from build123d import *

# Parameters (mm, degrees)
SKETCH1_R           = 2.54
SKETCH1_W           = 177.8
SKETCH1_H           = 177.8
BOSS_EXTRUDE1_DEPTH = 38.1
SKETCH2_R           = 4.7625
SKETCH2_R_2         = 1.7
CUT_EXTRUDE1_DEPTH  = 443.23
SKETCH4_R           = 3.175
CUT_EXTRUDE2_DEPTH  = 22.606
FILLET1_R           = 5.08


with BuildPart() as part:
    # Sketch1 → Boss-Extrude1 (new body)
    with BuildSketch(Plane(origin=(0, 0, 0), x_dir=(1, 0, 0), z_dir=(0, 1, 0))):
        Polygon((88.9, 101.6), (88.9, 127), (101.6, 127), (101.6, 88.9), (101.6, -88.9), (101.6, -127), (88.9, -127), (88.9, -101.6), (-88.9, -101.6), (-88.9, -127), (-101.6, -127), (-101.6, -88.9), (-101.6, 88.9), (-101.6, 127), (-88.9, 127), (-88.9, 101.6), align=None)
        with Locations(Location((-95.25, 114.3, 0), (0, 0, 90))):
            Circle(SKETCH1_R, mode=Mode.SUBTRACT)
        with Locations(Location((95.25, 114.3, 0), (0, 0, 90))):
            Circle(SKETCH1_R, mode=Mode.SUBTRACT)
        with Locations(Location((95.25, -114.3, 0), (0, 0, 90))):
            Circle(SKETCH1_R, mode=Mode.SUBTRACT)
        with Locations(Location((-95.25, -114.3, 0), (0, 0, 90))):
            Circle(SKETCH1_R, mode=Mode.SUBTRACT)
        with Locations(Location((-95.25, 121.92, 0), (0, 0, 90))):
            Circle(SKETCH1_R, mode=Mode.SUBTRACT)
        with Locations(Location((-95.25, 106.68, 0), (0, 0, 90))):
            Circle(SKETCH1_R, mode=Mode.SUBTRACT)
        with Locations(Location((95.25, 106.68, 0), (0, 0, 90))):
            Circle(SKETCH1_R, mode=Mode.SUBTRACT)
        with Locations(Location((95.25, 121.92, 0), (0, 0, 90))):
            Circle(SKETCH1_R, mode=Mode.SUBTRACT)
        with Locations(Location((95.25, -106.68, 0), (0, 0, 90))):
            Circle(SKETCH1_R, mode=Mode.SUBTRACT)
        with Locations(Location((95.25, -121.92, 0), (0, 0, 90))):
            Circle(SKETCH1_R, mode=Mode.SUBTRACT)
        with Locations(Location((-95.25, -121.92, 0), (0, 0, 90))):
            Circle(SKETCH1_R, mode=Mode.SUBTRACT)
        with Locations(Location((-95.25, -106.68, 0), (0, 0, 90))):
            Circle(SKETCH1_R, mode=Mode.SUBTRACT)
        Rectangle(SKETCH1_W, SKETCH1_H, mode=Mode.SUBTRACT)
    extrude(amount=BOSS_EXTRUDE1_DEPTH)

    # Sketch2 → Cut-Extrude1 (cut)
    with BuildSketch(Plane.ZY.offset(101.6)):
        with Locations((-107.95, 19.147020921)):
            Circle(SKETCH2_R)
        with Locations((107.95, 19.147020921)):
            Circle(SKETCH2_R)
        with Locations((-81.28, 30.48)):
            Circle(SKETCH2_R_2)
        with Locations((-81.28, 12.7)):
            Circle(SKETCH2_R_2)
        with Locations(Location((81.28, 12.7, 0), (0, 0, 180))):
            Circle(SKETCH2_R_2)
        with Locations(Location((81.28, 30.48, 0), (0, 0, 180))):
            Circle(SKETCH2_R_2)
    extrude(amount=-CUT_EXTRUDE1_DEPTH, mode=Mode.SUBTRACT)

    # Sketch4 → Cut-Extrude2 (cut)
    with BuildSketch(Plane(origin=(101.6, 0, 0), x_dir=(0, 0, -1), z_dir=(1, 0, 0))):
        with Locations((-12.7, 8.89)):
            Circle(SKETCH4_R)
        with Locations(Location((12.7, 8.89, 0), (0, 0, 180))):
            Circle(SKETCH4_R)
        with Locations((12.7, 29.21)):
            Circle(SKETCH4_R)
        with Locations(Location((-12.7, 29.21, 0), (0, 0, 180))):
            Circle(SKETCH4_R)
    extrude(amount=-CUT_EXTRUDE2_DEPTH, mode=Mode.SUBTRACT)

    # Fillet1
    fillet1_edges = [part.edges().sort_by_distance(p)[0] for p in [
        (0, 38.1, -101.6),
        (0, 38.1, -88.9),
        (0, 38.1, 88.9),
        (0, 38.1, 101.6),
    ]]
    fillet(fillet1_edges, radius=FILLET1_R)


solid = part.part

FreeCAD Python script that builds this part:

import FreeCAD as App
import Part
import Sketcher

V = App.Vector
Q = App.Units.Quantity


def edges_at(feature, points):
    """Names of the edges that pass closest to the given points."""
    edges = feature.Shape.Edges
    near = lambda p: min(range(len(edges)), key=lambda i: edges[i].distToShape(Part.Vertex(*p))[0])
    return sorted({f"Edge{near(p) + 1}" for p in points})


def add_polygon(sketch, points):
    """Adds a closed chain of lines whose ends are joined by coincident constraints."""
    first, n = sketch.GeometryCount, len(points)
    for a, b in zip(points, points[1:] + points[:1]):
        sketch.addGeometry(Part.LineSegment(App.Vector(*a, 0), App.Vector(*b, 0)), False)
    for i in range(n):
        sketch.addConstraint(Sketcher.Constraint("Coincident", first + i, 2, first + (i + 1) % n, 1))

doc = App.newDocument("Part")
body = doc.addObject("PartDesign::Body", "Body")

sketch1 = body.newObject("Sketcher::SketchObject", "Sketch")
sketch1.AttachmentSupport = (doc.getObject("XZ_Plane"), [""])
sketch1.MapMode = "FlatFace"
add_polygon(sketch1, [(88.9, -127), (88.9, -101.6), (-88.9, -101.6), (-88.9, -127), (-101.6, -127), (-101.6, 127), (-88.9, 127), (-88.9, 101.6), (88.9, 101.6), (88.9, 127), (101.6, 127), (101.6, -127)])
sketch1.addGeometry(Part.Circle(V(95.2, 121.9, 0), V(0, 0, 1), 2.5), False)
sketch1.addGeometry(Part.Circle(V(95.2, 114.3, 0), V(0, 0, 1), 2.5), False)
sketch1.addGeometry(Part.Circle(V(95.2, 106.7, 0), V(0, 0, 1), 2.5), False)
sketch1.addGeometry(Part.Circle(V(-95.2, 121.9, 0), V(0, 0, 1), 2.5), False)
sketch1.addGeometry(Part.Circle(V(-95.2, 114.3, 0), V(0, 0, 1), 2.5), False)
sketch1.addGeometry(Part.Circle(V(-95.2, 106.7, 0), V(0, 0, 1), 2.5), False)
sketch1.addGeometry(Part.Circle(V(95.2, -106.7, 0), V(0, 0, 1), 2.5), False)
sketch1.addGeometry(Part.Circle(V(95.2, -114.3, 0), V(0, 0, 1), 2.5), False)
sketch1.addGeometry(Part.Circle(V(95.2, -121.9, 0), V(0, 0, 1), 2.5), False)
add_polygon(sketch1, [(-88.9, 88.9), (-88.9, -88.9), (88.9, -88.9), (88.9, 88.9)])
sketch1.addGeometry(Part.Circle(V(-95.2, -106.7, 0), V(0, 0, 1), 2.5), False)
sketch1.addGeometry(Part.Circle(V(-95.2, -114.3, 0), V(0, 0, 1), 2.5), False)
sketch1.addGeometry(Part.Circle(V(-95.2, -121.9, 0), V(0, 0, 1), 2.5), False)
sketch1.addConstraint(Sketcher.Constraint("Vertical", 0))
sketch1.addConstraint(Sketcher.Constraint("Horizontal", 1))
sketch1.addConstraint(Sketcher.Constraint("Vertical", 2))
sketch1.addConstraint(Sketcher.Constraint("Horizontal", 3))
sketch1.addConstraint(Sketcher.Constraint("Vertical", 4))
sketch1.addConstraint(Sketcher.Constraint("Horizontal", 5))
sketch1.addConstraint(Sketcher.Constraint("Vertical", 6))
sketch1.addConstraint(Sketcher.Constraint("Horizontal", 7))
sketch1.addConstraint(Sketcher.Constraint("Vertical", 8))
sketch1.addConstraint(Sketcher.Constraint("Horizontal", 9))
sketch1.addConstraint(Sketcher.Constraint("Vertical", 10))
sketch1.addConstraint(Sketcher.Constraint("Horizontal", 11))
sketch1.addConstraint(Sketcher.Constraint("Vertical", 21))
sketch1.addConstraint(Sketcher.Constraint("Horizontal", 22))
sketch1.addConstraint(Sketcher.Constraint("Vertical", 23))
sketch1.addConstraint(Sketcher.Constraint("Horizontal", 24))
sketch1.addConstraint(Sketcher.Constraint("Equal", 12, 13))
sketch1.addConstraint(Sketcher.Constraint("Equal", 13, 14))
sketch1.addConstraint(Sketcher.Constraint("Equal", 14, 15))
sketch1.addConstraint(Sketcher.Constraint("Equal", 15, 16))
sketch1.addConstraint(Sketcher.Constraint("Equal", 16, 17))
sketch1.addConstraint(Sketcher.Constraint("Equal", 17, 18))
sketch1.addConstraint(Sketcher.Constraint("Equal", 18, 19))
sketch1.addConstraint(Sketcher.Constraint("Equal", 19, 20))
sketch1.addConstraint(Sketcher.Constraint("Equal", 20, 25))
sketch1.addConstraint(Sketcher.Constraint("Equal", 25, 26))
sketch1.addConstraint(Sketcher.Constraint("Equal", 26, 27))
sketch1.addConstraint(Sketcher.Constraint("Symmetric", 17, 3, 18, 3, -1, 1))
sketch1.addConstraint(Sketcher.Constraint("Symmetric", 16, 3, 19, 3, -1, 1))
sketch1.addConstraint(Sketcher.Constraint("Symmetric", 15, 3, 20, 3, -1, 1))
sketch1.addConstraint(Sketcher.Constraint("Symmetric", 14, 3, 25, 3, -1, 1))
sketch1.addConstraint(Sketcher.Constraint("Symmetric", 13, 3, 26, 3, -1, 1))
sketch1.addConstraint(Sketcher.Constraint("Symmetric", 12, 3, 27, 3, -1, 1))
sketch1.addConstraint(Sketcher.Constraint("Symmetric", 0, 2, 6, 2, -1, 1))
sketch1.addConstraint(Sketcher.Constraint("Symmetric", 2, 2, 8, 2, -1, 1))
sketch1.addConstraint(Sketcher.Constraint("Symmetric", 4, 2, 10, 2, -1, 1))
sketch1.addConstraint(Sketcher.Constraint("Symmetric", 21, 2, 23, 2, -1, 1))
sketch1.addConstraint(Sketcher.Constraint("Symmetric", 12, 3, 15, 3, -2))
sketch1.addConstraint(Sketcher.Constraint("Symmetric", 13, 3, 16, 3, -2))
sketch1.addConstraint(Sketcher.Constraint("Symmetric", 14, 3, 17, 3, -2))
sketch1.addConstraint(Sketcher.Constraint("Symmetric", 5, 2, 8, 2, -2))
sketch1.addConstraint(Sketcher.Constraint("Vertical", 12, 3, 13, 3))
sketch1.addConstraint(Sketcher.Constraint("Vertical", 13, 3, 14, 3))
sketch1.addConstraint(Sketcher.Constraint("Vertical", 6, 2, 21, 2))
sketch1.addConstraint(Sketcher.Constraint("Equal", 24, 21))
sketch1.addConstraint(Sketcher.Constraint("Diameter", 12, Q("0.2 in")))
sketch1.addConstraint(Sketcher.Constraint("DistanceX", 1, 2, 1, 1, Q("7 in")))
sketch1.addConstraint(Sketcher.Constraint("DistanceY", 0, 1, 0, 2, Q("1 in")))
sketch1.addConstraint(Sketcher.Constraint("DistanceY", 4, 1, 4, 2, Q("10 in")))
sketch1.addConstraint(Sketcher.Constraint("DistanceX", 3, 2, 3, 1, Q("0.5 in")))
sketch1.addConstraint(Sketcher.Constraint("DistanceY", 18, 3, 12, 3, Q("9 in")))
sketch1.addConstraint(Sketcher.Constraint("DistanceY", 19, 3, 13, 3, Q("9 in")))
sketch1.addConstraint(Sketcher.Constraint("DistanceY", -1, 1, 12, 3, Q("4.8 in")))
sketch1.addConstraint(Sketcher.Constraint("DistanceX", 15, 3, 12, 3, Q("7.5 in")))
pad1 = body.newObject("PartDesign::Pad", "Pad")
pad1.Profile = sketch1
pad1.Length = Q("1.5 in")
pad1.Reversed = True

sketch2 = body.newObject("Sketcher::SketchObject", "Sketch001")
sketch2.AttachmentSupport = (doc.getObject("YZ_Plane"), [""])
sketch2.MapMode = "FlatFace"
sketch2.AttachmentOffset = App.Placement(V(0, 0, -4 * 25.4), App.Rotation())
sketch2.addGeometry(Part.Circle(V(19.1, -108, 0), V(0, 0, 1), 4.8), False)
sketch2.addGeometry(Part.Circle(V(19.1, 108, 0), V(0, 0, 1), 4.8), False)
sketch2.addGeometry(Part.Circle(V(30.5, -81.3, 0), V(0, 0, 1), 1.7), False)
sketch2.addGeometry(Part.Circle(V(12.7, -81.3, 0), V(0, 0, 1), 1.7), False)
sketch2.addGeometry(Part.Circle(V(12.7, 81.3, 0), V(0, 0, 1), 1.7), False)
sketch2.addGeometry(Part.Circle(V(30.5, 81.3, 0), V(0, 0, 1), 1.7), False)
sketch2.addConstraint(Sketcher.Constraint("Equal", 0, 1))
sketch2.addConstraint(Sketcher.Constraint("Equal", 2, 3))
sketch2.addConstraint(Sketcher.Constraint("Equal", 3, 4))
sketch2.addConstraint(Sketcher.Constraint("Equal", 4, 5))
sketch2.addConstraint(Sketcher.Constraint("Symmetric", 0, 3, 1, 3, -1))
sketch2.addConstraint(Sketcher.Constraint("Symmetric", 3, 3, 4, 3, -1))
sketch2.addConstraint(Sketcher.Constraint("Symmetric", 2, 3, 5, 3, -1))
sketch2.addConstraint(Sketcher.Constraint("Horizontal", 2, 3, 3, 3))
sketch2.addConstraint(Sketcher.Constraint("Diameter", 0, Q("0.375 in")))
sketch2.addConstraint(Sketcher.Constraint("DistanceX", -1, 1, 2, 3, Q("1.2 in")))
sketch2.addConstraint(Sketcher.Constraint("DistanceY", 2, 3, -1, 1, Q("3.2 in")))
sketch2.addConstraint(Sketcher.Constraint("DistanceX", -1, 1, 3, 3, Q("0.5 in")))
sketch2.addConstraint(Sketcher.Constraint("DistanceY", 0, 3, 1, 3, Q("8.5 in")))
sketch2.addConstraint(Sketcher.Constraint("Diameter", 2, Q("3.4 mm")))
sketch2.addConstraint(Sketcher.Constraint("DistanceX", -1, 1, 0, 3, Q("19.147021 mm")))
pocket1 = body.newObject("PartDesign::Pocket", "Pocket")
pocket1.Profile = sketch2
pocket1.Length = Q("17.45 in")
pocket1.Reversed = True

sketch3 = body.newObject("Sketcher::SketchObject", "Sketch002")
sketch3.AttachmentSupport = (doc.getObject("YZ_Plane"), [""])
sketch3.MapMode = "FlatFace"
sketch3.AttachmentOffset = App.Placement(V(0, 0, 4 * 25.4), App.Rotation())
sketch3.addGeometry(Part.Circle(V(8.9, 12.7, 0), V(0, 0, 1), 3.2), False)
sketch3.addGeometry(Part.Circle(V(8.9, -12.7, 0), V(0, 0, 1), 3.2), False)
sketch3.addGeometry(Part.Circle(V(29.2, -12.7, 0), V(0, 0, 1), 3.2), False)
sketch3.addGeometry(Part.Circle(V(29.2, 12.7, 0), V(0, 0, 1), 3.2), False)
sketch3.addConstraint(Sketcher.Constraint("Equal", 0, 1))
sketch3.addConstraint(Sketcher.Constraint("Equal", 1, 2))
sketch3.addConstraint(Sketcher.Constraint("Equal", 2, 3))
sketch3.addConstraint(Sketcher.Constraint("Symmetric", 0, 3, 1, 3, -1))
sketch3.addConstraint(Sketcher.Constraint("Symmetric", 2, 3, 3, 3, -1))
sketch3.addConstraint(Sketcher.Constraint("Horizontal", 1, 3, 2, 3))
sketch3.addConstraint(Sketcher.Constraint("Diameter", 0, Q("0.25 in")))
sketch3.addConstraint(Sketcher.Constraint("DistanceY", 1, 3, 0, 3, Q("1 in")))
sketch3.addConstraint(Sketcher.Constraint("DistanceX", 1, 3, 2, 3, Q("0.8 in")))
sketch3.addConstraint(Sketcher.Constraint("DistanceX", -1, 1, 0, 3, Q("0.35 in")))
pocket2 = body.newObject("PartDesign::Pocket", "Pocket001")
pocket2.Profile = sketch3
pocket2.Length = Q("0.89 in")
doc.recompute()

fillet = body.newObject("PartDesign::Fillet", "Fillet")
fillet.Base = (pocket2, edges_at(pocket2, [
    (0, 38.1, -101.6),
    (0, 38.1, -88.9),
    (0, 38.1, 88.9),
    (0, 38.1, 101.6),
]))
fillet.Radius = Q("0.2 in")

doc.recompute()
